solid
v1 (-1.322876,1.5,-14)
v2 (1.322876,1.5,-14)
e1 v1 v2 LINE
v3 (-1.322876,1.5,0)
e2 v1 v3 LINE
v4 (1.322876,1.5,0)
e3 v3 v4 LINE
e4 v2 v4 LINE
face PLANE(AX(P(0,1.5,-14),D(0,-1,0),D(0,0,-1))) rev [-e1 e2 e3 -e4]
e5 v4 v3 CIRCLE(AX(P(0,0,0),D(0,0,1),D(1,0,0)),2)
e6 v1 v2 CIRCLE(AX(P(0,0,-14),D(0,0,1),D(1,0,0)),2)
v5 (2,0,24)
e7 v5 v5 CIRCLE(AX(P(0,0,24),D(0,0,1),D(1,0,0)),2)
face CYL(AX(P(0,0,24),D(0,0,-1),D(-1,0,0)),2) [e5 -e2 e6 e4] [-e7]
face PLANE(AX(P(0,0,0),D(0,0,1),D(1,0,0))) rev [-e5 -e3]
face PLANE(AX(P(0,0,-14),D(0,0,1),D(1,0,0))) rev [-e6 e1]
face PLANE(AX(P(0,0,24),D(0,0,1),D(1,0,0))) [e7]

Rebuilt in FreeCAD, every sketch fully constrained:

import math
import FreeCAD as App
import Part
import Sketcher

doc = App.newDocument("Part")
body = doc.addObject("PartDesign::Body", "Body")

# Sketch on XY plane
sketch1 = doc.addObject("Sketcher::SketchObject", "Sketch")
body.addObject(sketch1)
sketch1.AttachmentSupport = (doc.XY_Plane, [""])
sketch1.MapMode = "FlatFace"
sketch1.addGeometry(Part.Circle(App.Vector(0, 0, 0), App.Vector(0, 0, 1), 2), False)
sketch1.addConstraint([
    Sketcher.Constraint("Coincident", 0, 3, -1, 1),
    Sketcher.Constraint("Diameter", 0, 4.0),
])
pad1 = doc.addObject("PartDesign::Pad", "Pad")
body.addObject(pad1)
pad1.Profile = sketch1
pad1.Length = 24

# Sketch on XY plane
sketch2 = doc.addObject("Sketcher::SketchObject", "Sketch001")
body.addObject(sketch2)
sketch2.AttachmentSupport = (doc.XY_Plane, [""])
sketch2.MapMode = "FlatFace"
sketch2.AttachmentOffset = App.Placement(App.Vector(0, 0, -14), App.Rotation())
sketch2.addGeometry([
    Part.LineSegment(App.Vector(1.322876, 1.5, 0), App.Vector(-1.322876, 1.5, 0)),
    Part.ArcOfCircle(Part.Circle(App.Vector(0, 0, 0), App.Vector(0, 0, 1), 2), math.radians(131.409622), math.radians(360)),
    Part.ArcOfCircle(Part.Circle(App.Vector(0, 0, 0), App.Vector(0, 0, 1), 2), math.radians(0), math.radians(48.590378)),
], False)
sketch2.addConstraint([
    Sketcher.Constraint("Coincident", 0, 2, 1, 1),
    Sketcher.Constraint("Tangent", 1, 2, 2, 1),
    Sketcher.Constraint("Coincident", 2, 2, 0, 1),
    Sketcher.Constraint("Horizontal", 0),
    Sketcher.Constraint("Coincident", 1, 3, -1, 1),
    Sketcher.Constraint("Equal", 1, 2),
    Sketcher.Constraint("PointOnObject", 1, 2, -1),
    Sketcher.Constraint("Radius", 1, 2.0),
    Sketcher.Constraint("DistanceY", -1, 1, 0, 2, 1.5),
])
pad2 = doc.addObject("PartDesign::Pad", "Pad001")
body.addObject(pad2)
pad2.Profile = sketch2
pad2.Length = 14

doc.recompute()
